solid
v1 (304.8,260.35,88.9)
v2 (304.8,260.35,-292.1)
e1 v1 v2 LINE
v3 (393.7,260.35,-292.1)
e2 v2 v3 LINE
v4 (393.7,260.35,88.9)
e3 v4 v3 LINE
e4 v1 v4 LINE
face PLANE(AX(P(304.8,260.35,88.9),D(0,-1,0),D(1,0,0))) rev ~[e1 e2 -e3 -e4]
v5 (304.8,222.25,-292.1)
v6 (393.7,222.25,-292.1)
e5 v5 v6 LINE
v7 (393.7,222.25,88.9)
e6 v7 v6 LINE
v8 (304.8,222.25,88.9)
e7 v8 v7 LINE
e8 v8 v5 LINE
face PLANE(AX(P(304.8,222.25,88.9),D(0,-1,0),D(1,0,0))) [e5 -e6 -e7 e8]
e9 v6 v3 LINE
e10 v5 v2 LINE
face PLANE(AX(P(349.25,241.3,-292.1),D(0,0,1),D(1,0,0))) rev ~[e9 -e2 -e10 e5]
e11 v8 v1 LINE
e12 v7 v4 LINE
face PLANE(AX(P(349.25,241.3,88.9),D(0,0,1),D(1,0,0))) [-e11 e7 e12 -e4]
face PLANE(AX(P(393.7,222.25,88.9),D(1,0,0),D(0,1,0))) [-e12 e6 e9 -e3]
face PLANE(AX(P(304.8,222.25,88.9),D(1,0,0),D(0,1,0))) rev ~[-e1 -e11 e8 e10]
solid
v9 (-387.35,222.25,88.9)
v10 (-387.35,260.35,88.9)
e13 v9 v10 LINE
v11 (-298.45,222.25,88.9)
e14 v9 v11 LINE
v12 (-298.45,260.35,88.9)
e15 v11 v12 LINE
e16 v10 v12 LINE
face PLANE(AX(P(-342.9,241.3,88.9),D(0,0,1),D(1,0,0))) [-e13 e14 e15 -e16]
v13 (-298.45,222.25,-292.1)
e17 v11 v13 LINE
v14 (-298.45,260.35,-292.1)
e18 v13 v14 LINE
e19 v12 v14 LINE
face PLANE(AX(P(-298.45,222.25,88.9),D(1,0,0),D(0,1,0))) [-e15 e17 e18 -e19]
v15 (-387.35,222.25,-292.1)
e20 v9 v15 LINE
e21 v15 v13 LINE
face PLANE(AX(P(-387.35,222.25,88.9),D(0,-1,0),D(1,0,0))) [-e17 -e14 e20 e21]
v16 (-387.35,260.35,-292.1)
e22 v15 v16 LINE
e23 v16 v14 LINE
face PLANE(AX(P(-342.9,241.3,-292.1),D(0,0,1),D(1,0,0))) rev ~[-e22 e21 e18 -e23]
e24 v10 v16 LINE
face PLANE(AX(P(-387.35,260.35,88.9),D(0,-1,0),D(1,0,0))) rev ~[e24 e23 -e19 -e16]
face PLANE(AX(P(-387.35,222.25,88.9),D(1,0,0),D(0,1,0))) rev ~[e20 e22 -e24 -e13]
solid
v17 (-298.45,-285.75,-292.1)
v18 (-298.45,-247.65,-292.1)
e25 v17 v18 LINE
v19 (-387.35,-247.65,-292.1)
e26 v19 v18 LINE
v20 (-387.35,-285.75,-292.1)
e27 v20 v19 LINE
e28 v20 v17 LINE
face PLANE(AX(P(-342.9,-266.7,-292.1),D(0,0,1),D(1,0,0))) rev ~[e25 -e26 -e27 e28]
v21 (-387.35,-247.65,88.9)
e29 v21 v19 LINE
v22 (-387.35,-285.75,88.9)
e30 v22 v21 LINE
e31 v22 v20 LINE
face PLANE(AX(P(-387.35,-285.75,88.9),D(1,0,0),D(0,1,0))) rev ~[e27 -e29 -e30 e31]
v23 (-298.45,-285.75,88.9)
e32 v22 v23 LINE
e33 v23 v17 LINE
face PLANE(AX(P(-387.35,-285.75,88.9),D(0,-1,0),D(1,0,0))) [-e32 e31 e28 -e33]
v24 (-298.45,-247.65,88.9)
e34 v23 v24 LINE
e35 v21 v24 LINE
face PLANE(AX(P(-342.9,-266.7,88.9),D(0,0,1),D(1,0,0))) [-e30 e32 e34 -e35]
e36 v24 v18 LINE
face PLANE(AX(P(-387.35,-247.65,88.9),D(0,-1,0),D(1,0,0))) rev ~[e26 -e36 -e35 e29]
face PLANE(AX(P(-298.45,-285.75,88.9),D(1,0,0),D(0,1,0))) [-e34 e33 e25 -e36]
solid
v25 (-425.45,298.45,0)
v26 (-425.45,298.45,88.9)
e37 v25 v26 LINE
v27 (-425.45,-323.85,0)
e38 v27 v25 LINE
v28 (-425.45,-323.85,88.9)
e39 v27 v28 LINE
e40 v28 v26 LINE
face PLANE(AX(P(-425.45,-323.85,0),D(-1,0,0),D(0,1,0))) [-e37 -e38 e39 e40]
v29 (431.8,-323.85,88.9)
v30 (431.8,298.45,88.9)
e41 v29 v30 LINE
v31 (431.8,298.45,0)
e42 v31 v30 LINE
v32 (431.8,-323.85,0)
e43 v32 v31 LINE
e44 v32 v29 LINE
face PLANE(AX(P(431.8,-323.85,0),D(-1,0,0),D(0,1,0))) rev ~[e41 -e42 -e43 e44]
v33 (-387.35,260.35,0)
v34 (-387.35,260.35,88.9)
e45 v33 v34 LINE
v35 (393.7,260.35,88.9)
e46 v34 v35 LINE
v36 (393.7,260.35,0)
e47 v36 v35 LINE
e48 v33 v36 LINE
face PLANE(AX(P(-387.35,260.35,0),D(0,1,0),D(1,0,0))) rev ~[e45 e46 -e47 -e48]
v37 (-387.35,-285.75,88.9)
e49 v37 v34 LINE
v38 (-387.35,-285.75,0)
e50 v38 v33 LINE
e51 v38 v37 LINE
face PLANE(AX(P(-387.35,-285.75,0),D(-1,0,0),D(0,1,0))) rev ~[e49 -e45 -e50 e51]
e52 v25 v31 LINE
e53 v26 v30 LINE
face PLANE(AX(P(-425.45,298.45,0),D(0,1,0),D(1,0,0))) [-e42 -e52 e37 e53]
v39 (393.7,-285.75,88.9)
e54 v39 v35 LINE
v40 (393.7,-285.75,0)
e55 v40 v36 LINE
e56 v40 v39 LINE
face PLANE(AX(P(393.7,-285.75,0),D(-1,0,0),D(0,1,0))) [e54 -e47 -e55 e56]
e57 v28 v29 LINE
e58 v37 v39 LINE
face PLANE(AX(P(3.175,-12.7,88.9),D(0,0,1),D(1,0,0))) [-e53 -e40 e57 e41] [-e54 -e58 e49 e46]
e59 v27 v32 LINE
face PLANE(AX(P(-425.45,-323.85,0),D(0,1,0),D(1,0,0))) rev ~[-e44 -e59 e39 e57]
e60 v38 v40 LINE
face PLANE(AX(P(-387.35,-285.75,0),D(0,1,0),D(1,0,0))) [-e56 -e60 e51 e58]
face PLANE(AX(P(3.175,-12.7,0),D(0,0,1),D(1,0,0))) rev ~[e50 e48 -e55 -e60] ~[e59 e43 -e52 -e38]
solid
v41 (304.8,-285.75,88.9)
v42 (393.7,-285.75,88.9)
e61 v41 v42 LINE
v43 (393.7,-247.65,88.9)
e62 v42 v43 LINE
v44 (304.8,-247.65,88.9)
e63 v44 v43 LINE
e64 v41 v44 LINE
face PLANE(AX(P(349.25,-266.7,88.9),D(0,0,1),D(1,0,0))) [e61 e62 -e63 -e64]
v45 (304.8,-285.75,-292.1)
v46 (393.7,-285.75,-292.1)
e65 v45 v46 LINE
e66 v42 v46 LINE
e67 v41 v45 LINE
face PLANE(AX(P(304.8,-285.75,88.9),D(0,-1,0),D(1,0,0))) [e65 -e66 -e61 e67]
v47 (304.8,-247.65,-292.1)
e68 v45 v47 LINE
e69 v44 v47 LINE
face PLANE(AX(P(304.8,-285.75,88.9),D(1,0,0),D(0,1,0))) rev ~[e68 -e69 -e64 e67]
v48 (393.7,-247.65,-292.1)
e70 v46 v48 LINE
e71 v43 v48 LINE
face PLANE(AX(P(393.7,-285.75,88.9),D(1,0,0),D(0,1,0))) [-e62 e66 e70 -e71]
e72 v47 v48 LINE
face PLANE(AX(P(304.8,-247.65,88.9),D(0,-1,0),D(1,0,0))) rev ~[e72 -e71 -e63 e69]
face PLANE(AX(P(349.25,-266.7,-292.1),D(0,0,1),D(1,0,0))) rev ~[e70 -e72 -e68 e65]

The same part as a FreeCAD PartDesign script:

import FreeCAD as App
import Part
import Sketcher
Q = App.Units.Quantity

doc = App.newDocument("Part")
body = doc.addObject("PartDesign::Body", "Body")

# Sketch on XY plane
sketch1 = doc.addObject("Sketcher::SketchObject", "Sketch")
body.addObject(sketch1)
sketch1.AttachmentSupport = (doc.XY_Plane, [""])
sketch1.MapMode = "FlatFace"
sketch1.addGeometry([
    Part.LineSegment(App.Vector(-425, 298, 0), App.Vector(-425, -324, 0)),  # 0
    Part.LineSegment(App.Vector(-425, -324, 0), App.Vector(432, -324, 0)),  # 1
    Part.LineSegment(App.Vector(432, -324, 0), App.Vector(432, 298, 0)),  # 2
    Part.LineSegment(App.Vector(432, 298, 0), App.Vector(-425, 298, 0)),  # 3
    Part.LineSegment(App.Vector(394, -286, 0), App.Vector(-387, -286, 0)),  # 4
    Part.LineSegment(App.Vector(-387, -286, 0), App.Vector(-387, 260, 0)),  # 5
    Part.LineSegment(App.Vector(-387, 260, 0), App.Vector(394, 260, 0)),  # 6
    Part.LineSegment(App.Vector(394, 260, 0), App.Vector(394, -286, 0)),  # 7
], False)
sketch1.addConstraint([
    Sketcher.Constraint("Coincident", 0, 2, 1, 1),
    Sketcher.Constraint("Coincident", 1, 2, 2, 1),
    Sketcher.Constraint("Coincident", 2, 2, 3, 1),
    Sketcher.Constraint("Coincident", 3, 2, 0, 1),
    Sketcher.Constraint("Coincident", 4, 2, 5, 1),
    Sketcher.Constraint("Coincident", 5, 2, 6, 1),
    Sketcher.Constraint("Coincident", 6, 2, 7, 1),
    Sketcher.Constraint("Coincident", 7, 2, 4, 1),
    Sketcher.Constraint("Vertical", 0),
    Sketcher.Constraint("Horizontal", 1),
    Sketcher.Constraint("Vertical", 2),
    Sketcher.Constraint("Horizontal", 3),
    Sketcher.Constraint("Horizontal", 4),
    Sketcher.Constraint("Vertical", 5),
    Sketcher.Constraint("Horizontal", 6),
    Sketcher.Constraint("Vertical", 7),
    Sketcher.Constraint("DistanceY", 0, 2, 0, 1, Q("24.5 in")),
    Sketcher.Constraint("DistanceY", 5, 1, 5, 2, Q("21.5 in")),
    Sketcher.Constraint("DistanceX", -1, 1, 1, 2, Q("17 in")),
    Sketcher.Constraint("DistanceY", 4, 2, 3, 2, Q("23 in")),
    Sketcher.Constraint("DistanceX", 1, 1, 1, 2, Q("33.75 in")),
    Sketcher.Constraint("DistanceX", 4, 2, 4, 1, Q("30.75 in")),
    Sketcher.Constraint("DistanceX", -1, 1, 6, 2, Q("15.5 in")),
    Sketcher.Constraint("DistanceY", 0, 2, -1, 1, Q("12.75 in")),
])
pad1 = doc.addObject("PartDesign::Pad", "Pad")
body.addObject(pad1)
pad1.Profile = sketch1
pad1.Length = Q("3.5 in")
body2 = doc.addObject("PartDesign::Body", "Body001")

# Sketch on XY plane
sketch2 = doc.addObject("Sketcher::SketchObject", "Sketch001")
body2.addObject(sketch2)
sketch2.AttachmentSupport = (doc.getObject("XY_Plane001"), [""])
sketch2.MapMode = "FlatFace"
sketch2.AttachmentOffset = App.Placement(App.Vector(0, 0, 3.5 * 25.4), App.Rotation())
sketch2.addGeometry([
    Part.LineSegment(App.Vector(-387, 260, 0), App.Vector(-387, 222, 0)),
    Part.LineSegment(App.Vector(-387, 222, 0), App.Vector(-298, 222, 0)),
    Part.LineSegment(App.Vector(-298, 222, 0), App.Vector(-298, 260, 0)),
    Part.LineSegment(App.Vector(-298, 260, 0), App.Vector(-387, 260, 0)),
], False)
sketch2.addConstraint([
    Sketcher.Constraint("Coincident", 0, 2, 1, 1),
    Sketcher.Constraint("Coincident", 1, 2, 2, 1),
    Sketcher.Constraint("Coincident", 2, 2, 3, 1),
    Sketcher.Constraint("Coincident", 3, 2, 0, 1),
    Sketcher.Constraint("Vertical", 0),
    Sketcher.Constraint("Horizontal", 1),
    Sketcher.Constraint("Vertical", 2),
    Sketcher.Constraint("Horizontal", 3),
    Sketcher.Constraint("DistanceX", 1, 1, 1, 2, Q("3.5 in")),
    Sketcher.Constraint("DistanceY", 0, 2, 0, 1, Q("1.5 in")),
    Sketcher.Constraint("DistanceX", 0, 2, -1, 1, Q("15.25 in")),
    Sketcher.Constraint("DistanceY", -1, 1, 0, 2, Q("8.75 in")),
])
pad2 = doc.addObject("PartDesign::Pad", "Pad001")
body2.addObject(pad2)
pad2.Profile = sketch2
pad2.Length = Q("15 in")
pad2.Reversed = True
body3 = doc.addObject("PartDesign::Body", "Body002")

# Sketch on XY plane
sketch3 = doc.addObject("Sketcher::SketchObject", "Sketch002")
body3.addObject(sketch3)
sketch3.AttachmentSupport = (doc.getObject("XY_Plane002"), [""])
sketch3.MapMode = "FlatFace"
sketch3.AttachmentOffset = App.Placement(App.Vector(0, 0, 3.5 * 25.4), App.Rotation())
sketch3.addGeometry([
    Part.LineSegment(App.Vector(-387, -248, 0), App.Vector(-387, -286, 0)),
    Part.LineSegment(App.Vector(-387, -286, 0), App.Vector(-298, -286, 0)),
    Part.LineSegment(App.Vector(-298, -286, 0), App.Vector(-298, -248, 0)),
    Part.LineSegment(App.Vector(-298, -248, 0), App.Vector(-387, -248, 0)),
], False)
sketch3.addConstraint([
    Sketcher.Constraint("Coincident", 0, 2, 1, 1),
    Sketcher.Constraint("Coincident", 1, 2, 2, 1),
    Sketcher.Constraint("Coincident", 2, 2, 3, 1),
    Sketcher.Constraint("Coincident", 3, 2, 0, 1),
    Sketcher.Constraint("Vertical", 0),
    Sketcher.Constraint("Horizontal", 1),
    Sketcher.Constraint("Vertical", 2),
    Sketcher.Constraint("Horizontal", 3),
    Sketcher.Constraint("DistanceX", 1, 1, 1, 2, Q("3.5 in")),
    Sketcher.Constraint("DistanceY", 0, 2, 0, 1, Q("1.5 in")),
    Sketcher.Constraint("DistanceX", 0, 2, -1, 1, Q("15.25 in")),
    Sketcher.Constraint("DistanceY", 0, 2, -1, 1, Q("11.25 in")),
])
pad3 = doc.addObject("PartDesign::Pad", "Pad002")
body3.addObject(pad3)
pad3.Profile = sketch3
pad3.Length = Q("15 in")
pad3.Reversed = True
body4 = doc.addObject("PartDesign::Body", "Body003")

# Sketch on XY plane
sketch4 = doc.addObject("Sketcher::SketchObject", "Sketch003")
body4.addObject(sketch4)
sketch4.AttachmentSupport = (doc.getObject("XY_Plane003"), [""])
sketch4.MapMode = "FlatFace"
sketch4.AttachmentOffset = App.Placement(App.Vector(0, 0, 3.5 * 25.4), App.Rotation())
sketch4.addGeometry([
    Part.LineSegment(App.Vector(305, -248, 0), App.Vector(305, -286, 0)),
    Part.LineSegment(App.Vector(305, -286, 0), App.Vector(394, -286, 0)),
    Part.LineSegment(App.Vector(394, -286, 0), App.Vector(394, -248, 0)),
    Part.LineSegment(App.Vector(394, -248, 0), App.Vector(305, -248, 0)),
], False)
sketch4.addConstraint([
    Sketcher.Constraint("Coincident", 0, 2, 1, 1),
    Sketcher.Constraint("Coincident", 1, 2, 2, 1),
    Sketcher.Constraint("Coincident", 2, 2, 3, 1),
    Sketcher.Constraint("Coincident", 3, 2, 0, 1),
    Sketcher.Constraint("Vertical", 0),
    Sketcher.Constraint("Horizontal", 1),
    Sketcher.Constraint("Vertical", 2),
    Sketcher.Constraint("Horizontal", 3),
    Sketcher.Constraint("DistanceX", 1, 1, 1, 2, Q("3.5 in")),
    Sketcher.Constraint("DistanceY", 0, 2, 0, 1, Q("1.5 in")),
    Sketcher.Constraint("DistanceX", -1, 1, 0, 2, Q("12 in")),
    Sketcher.Constraint("DistanceY", 0, 2, -1, 1, Q("11.25 in")),
])
pad4 = doc.addObject("PartDesign::Pad", "Pad003")
body4.addObject(pad4)
pad4.Profile = sketch4
pad4.Length = Q("15 in")
pad4.Reversed = True
body5 = doc.addObject("PartDesign::Body", "Body004")

# Sketch on XY plane
sketch5 = doc.addObject("Sketcher::SketchObject", "Sketch004")
body5.addObject(sketch5)
sketch5.AttachmentSupport = (doc.getObject("XY_Plane004"), [""])
sketch5.MapMode = "FlatFace"
sketch5.AttachmentOffset = App.Placement(App.Vector(0, 0, 3.5 * 25.4), App.Rotation())
sketch5.addGeometry([
    Part.LineSegment(App.Vector(305, 260, 0), App.Vector(305, 222, 0)),
    Part.LineSegment(App.Vector(305, 222, 0), App.Vector(394, 222, 0)),
    Part.LineSegment(App.Vector(394, 222, 0), App.Vector(394, 260, 0)),
    Part.LineSegment(App.Vector(394, 260, 0), App.Vector(305, 260, 0)),
], False)
sketch5.addConstraint([
    Sketcher.Constraint("Coincident", 0, 2, 1, 1),
    Sketcher.Constraint("Coincident", 1, 2, 2, 1),
    Sketcher.Constraint("Coincident", 2, 2, 3, 1),
    Sketcher.Constraint("Coincident", 3, 2, 0, 1),
    Sketcher.Constraint("Vertical", 0),
    Sketcher.Constraint("Horizontal", 1),
    Sketcher.Constraint("Vertical", 2),
    Sketcher.Constraint("Horizontal", 3),
    Sketcher.Constraint("DistanceX", 1, 1, 1, 2, Q("3.5 in")),
    Sketcher.Constraint("DistanceY", 0, 2, 0, 1, Q("1.5 in")),
    Sketcher.Constraint("DistanceX", -1, 1, 0, 2, Q("12 in")),
    Sketcher.Constraint("DistanceY", -1, 1, 0, 2, Q("8.75 in")),
])
pad5 = doc.addObject("PartDesign::Pad", "Pad004")
body5.addObject(pad5)
pad5.Profile = sketch5
pad5.Length = Q("15 in")
pad5.Reversed = True

doc.recompute()
